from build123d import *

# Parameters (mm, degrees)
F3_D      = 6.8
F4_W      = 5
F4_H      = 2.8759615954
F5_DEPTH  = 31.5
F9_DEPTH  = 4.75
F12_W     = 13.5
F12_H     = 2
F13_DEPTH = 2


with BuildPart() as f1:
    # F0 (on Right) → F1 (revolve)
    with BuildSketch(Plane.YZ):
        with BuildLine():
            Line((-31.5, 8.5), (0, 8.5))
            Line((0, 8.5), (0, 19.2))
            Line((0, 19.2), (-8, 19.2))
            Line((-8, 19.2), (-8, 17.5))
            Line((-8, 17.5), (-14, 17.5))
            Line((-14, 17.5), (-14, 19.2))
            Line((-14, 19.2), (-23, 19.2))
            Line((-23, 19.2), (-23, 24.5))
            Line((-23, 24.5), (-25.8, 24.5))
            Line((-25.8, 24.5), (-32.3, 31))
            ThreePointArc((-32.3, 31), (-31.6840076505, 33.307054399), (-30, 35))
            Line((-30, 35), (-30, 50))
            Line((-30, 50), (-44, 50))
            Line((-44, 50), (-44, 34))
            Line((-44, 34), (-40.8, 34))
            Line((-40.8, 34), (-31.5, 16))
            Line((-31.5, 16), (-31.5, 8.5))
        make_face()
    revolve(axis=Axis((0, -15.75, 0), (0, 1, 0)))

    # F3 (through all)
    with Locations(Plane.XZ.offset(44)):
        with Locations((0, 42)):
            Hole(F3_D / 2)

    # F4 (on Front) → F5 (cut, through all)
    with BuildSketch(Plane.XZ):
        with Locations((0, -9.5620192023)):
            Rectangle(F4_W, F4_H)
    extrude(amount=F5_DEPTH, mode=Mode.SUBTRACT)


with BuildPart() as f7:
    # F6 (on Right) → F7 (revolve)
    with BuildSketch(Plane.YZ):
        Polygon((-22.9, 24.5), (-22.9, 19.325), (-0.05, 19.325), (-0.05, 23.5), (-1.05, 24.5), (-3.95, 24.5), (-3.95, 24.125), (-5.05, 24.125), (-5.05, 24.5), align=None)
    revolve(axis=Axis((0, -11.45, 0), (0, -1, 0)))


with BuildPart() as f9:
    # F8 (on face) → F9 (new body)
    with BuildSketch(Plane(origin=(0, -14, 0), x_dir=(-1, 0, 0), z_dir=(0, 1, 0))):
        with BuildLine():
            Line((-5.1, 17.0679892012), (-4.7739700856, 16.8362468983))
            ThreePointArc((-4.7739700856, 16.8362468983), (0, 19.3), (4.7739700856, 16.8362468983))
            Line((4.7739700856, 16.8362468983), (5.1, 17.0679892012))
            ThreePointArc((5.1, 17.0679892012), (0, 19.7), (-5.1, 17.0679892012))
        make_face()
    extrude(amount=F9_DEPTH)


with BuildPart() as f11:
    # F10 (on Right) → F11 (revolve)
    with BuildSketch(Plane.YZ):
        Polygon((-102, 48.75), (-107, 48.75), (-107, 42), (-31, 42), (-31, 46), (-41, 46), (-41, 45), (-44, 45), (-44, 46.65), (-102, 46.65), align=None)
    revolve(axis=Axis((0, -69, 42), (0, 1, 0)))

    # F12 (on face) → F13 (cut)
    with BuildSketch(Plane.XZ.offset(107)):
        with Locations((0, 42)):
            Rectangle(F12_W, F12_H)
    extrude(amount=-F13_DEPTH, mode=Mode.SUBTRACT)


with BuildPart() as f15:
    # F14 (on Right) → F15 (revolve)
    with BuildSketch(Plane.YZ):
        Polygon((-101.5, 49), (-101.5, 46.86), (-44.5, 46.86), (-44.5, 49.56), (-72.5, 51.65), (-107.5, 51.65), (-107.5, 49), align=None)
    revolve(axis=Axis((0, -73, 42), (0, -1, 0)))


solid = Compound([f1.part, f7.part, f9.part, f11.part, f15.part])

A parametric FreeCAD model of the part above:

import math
import FreeCAD as App
import Part
import Sketcher
from FreeCAD import Vector
Q = App.Units.Quantity

doc = App.newDocument("Part")
body = doc.addObject("PartDesign::Body", "Body")

# Sketch on YZ plane
sketch1 = doc.addObject("Sketcher::SketchObject", "Sketch")
body.addObject(sketch1)
sketch1.AttachmentSupport = (doc.YZ_Plane, [""])
sketch1.MapMode = "FlatFace"
sketch1.addGeometry([
    Part.LineSegment(Vector(-31.5, 8.5, 0), Vector(0, 8.5, 0)),  # 0
    Part.LineSegment(Vector(0, 8.5, 0), Vector(0, 19.2, 0)),  # 1
    Part.LineSegment(Vector(0, 19.2, 0), Vector(-8, 19.2, 0)),  # 2
    Part.LineSegment(Vector(-8, 19.2, 0), Vector(-8, 17.5, 0)),  # 3
    Part.LineSegment(Vector(-8, 17.5, 0), Vector(-14, 17.5, 0)),  # 4
    Part.LineSegment(Vector(-14, 17.5, 0), Vector(-14, 19.2, 0)),  # 5
    Part.LineSegment(Vector(-14, 19.2, 0), Vector(-23, 19.2, 0)),  # 6
    Part.LineSegment(Vector(-23, 19.2, 0), Vector(-23, 24.5, 0)),  # 7
    Part.LineSegment(Vector(-23, 24.5, 0), Vector(-25.8, 24.5, 0)),  # 8
    Part.LineSegment(Vector(-25.8, 24.5, 0), Vector(-32.3, 31, 0)),  # 9
    Part.ArcOfCircle(Part.Circle(Vector(-27.7, 31, 0), Vector(0, 0, 1), 4.6), math.radians(120), math.radians(180)),  # 10
    Part.LineSegment(Vector(-30, 35, 0), Vector(-30, 50, 0)),  # 11
    Part.LineSegment(Vector(-30, 50, 0), Vector(-44, 50, 0)),  # 12
    Part.LineSegment(Vector(-44, 50, 0), Vector(-44, 34, 0)),  # 13
    Part.LineSegment(Vector(-44, 34, 0), Vector(-40.8, 34, 0)),  # 14
    Part.LineSegment(Vector(-40.8, 34, 0), Vector(-31.5, 16, 0)),  # 15
    Part.LineSegment(Vector(-31.5, 16, 0), Vector(-31.5, 8.5, 0)),  # 16
], False)
sketch1.addConstraint([
    Sketcher.Constraint("Coincident", 0, 2, 1, 1),
    Sketcher.Constraint("Coincident", 1, 2, 2, 1),
    Sketcher.Constraint("Coincident", 2, 2, 3, 1),
    Sketcher.Constraint("Coincident", 3, 2, 4, 1),
    Sketcher.Constraint("Coincident", 4, 2, 5, 1),
    Sketcher.Constraint("Coincident", 5, 2, 6, 1),
    Sketcher.Constraint("Coincident", 6, 2, 7, 1),
    Sketcher.Constraint("Coincident", 7, 2, 8, 1),
    Sketcher.Constraint("Coincident", 8, 2, 9, 1),
    Sketcher.Constraint("Coincident", 9, 2, 10, 2),
    Sketcher.Constraint("Coincident", 10, 1, 11, 1),
    Sketcher.Constraint("Coincident", 11, 2, 12, 1),
    Sketcher.Constraint("Coincident", 12, 2, 13, 1),
    Sketcher.Constraint("Coincident", 13, 2, 14, 1),
    Sketcher.Constraint("Coincident", 14, 2, 15, 1),
    Sketcher.Constraint("Coincident", 15, 2, 16, 1),
    Sketcher.Constraint("Coincident", 16, 2, 0, 1),
    Sketcher.Constraint("Horizontal", 0),
    Sketcher.Constraint("Vertical", 1),
    Sketcher.Constraint("Horizontal", 2),
    Sketcher.Constraint("Vertical", 3),
    Sketcher.Constraint("Horizontal", 4),
    Sketcher.Constraint("Vertical", 5),
    Sketcher.Constraint("Horizontal", 6),
    Sketcher.Constraint("Vertical", 7),
    Sketcher.Constraint("Horizontal", 8),
    Sketcher.Constraint("Vertical", 11),
    Sketcher.Constraint("Horizontal", 12),
    Sketcher.Constraint("Vertical", 13),
    Sketcher.Constraint("Horizontal", 14),
    Sketcher.Constraint("Vertical", 16),
    Sketcher.Constraint("PointOnObject", 0, 2, -2),
    Sketcher.Constraint("Horizontal", 2, 2, 5, 2),
    Sketcher.Constraint("Horizontal", 10, 3, 9, 2),
    Sketcher.Constraint("DistanceX", 2, 2, 2, 1, 8.0),
    Sketcher.Constraint("DistanceX", 4, 2, 4, 1, 6.0),
    Sketcher.Constraint("DistanceX", 6, 2, 6, 1, 9.0),
    Sketcher.Constraint("DistanceX", 12, 2, 12, 1, 14.0),
    Sketcher.Constraint("DistanceY", 11, 1, 11, 2, 15.0),
    Sketcher.Constraint("DistanceY", 13, 2, 13, 1, 16.0),
    Sketcher.Constraint("Angle", 9, Q("135 deg")),
    Sketcher.Constraint("DistanceX", 0, 1, 0, 2, 31.5),
    Sketcher.Constraint("DistanceX", 8, 2, 8, 1, 2.8),
    Sketcher.Constraint("DistanceX", 14, 1, 14, 2, 3.2),
    Sketcher.Constraint("DistanceY", 1, 1, 1, 2, 10.7),
    Sketcher.Constraint("DistanceY", 3, 2, 3, 1, 1.7),
    Sketcher.Constraint("DistanceY", 7, 1, 7, 2, 5.3),
    Sketcher.Constraint("DistanceY", 16, 2, 16, 1, 7.5),
    Sketcher.Constraint("DistanceY", -1, 1, 10, 3, 31.0),
    Sketcher.Constraint("DistanceX", 10, 1, -1, 1, 30.0),
    Sketcher.Constraint("DistanceY", -1, 1, 10, 1, 35.0),
    Sketcher.Constraint("DistanceY", -1, 1, 15, 2, 16.0),
])
revolution = doc.addObject("PartDesign::Revolution", "Revolution")
body.addObject(revolution)
revolution.Profile = sketch1
revolution.ReferenceAxis = (sketch1, ["H_Axis"])
revolution.Angle = 360

# Sketch on XZ plane
sketch2 = doc.addObject("Sketcher::SketchObject", "Sketch001")
body.addObject(sketch2)
sketch2.AttachmentSupport = (doc.XZ_Plane, [""])
sketch2.MapMode = "FlatFace"
sketch2.AttachmentOffset = App.Placement(Vector(0, 0, 44), App.Rotation())
sketch2.addGeometry(Part.Circle(Vector(0, 42, 0), Vector(0, 0, 1), 3.4), False)
sketch2.addConstraint([
    Sketcher.Constraint("PointOnObject", 0, 3, -2),
    Sketcher.Constraint("Diameter", 0, 6.8),
    Sketcher.Constraint("DistanceY", -1, 1, 0, 3, 42.0),
])
doc.recompute()
hole = doc.addObject("PartDesign::Hole", "Hole")
body.addObject(hole)
hole.Profile = sketch2
hole.ThreadType = "None"
hole.Diameter = 6.8
hole.DepthType = "ThroughAll"

# Sketch on XZ plane
sketch3 = doc.addObject("Sketcher::SketchObject", "Sketch002")
body.addObject(sketch3)
sketch3.AttachmentSupport = (doc.XZ_Plane, [""])
sketch3.MapMode = "FlatFace"
sketch3.addGeometry([
    Part.LineSegment(Vector(-2.5, -8.1, 0), Vector(-2.5, -11, 0)),
    Part.LineSegment(Vector(-2.5, -11, 0), Vector(2.5, -11, 0)),
    Part.LineSegment(Vector(2.5, -11, 0), Vector(2.5, -8.1, 0)),
    Part.LineSegment(Vector(2.5, -8.1, 0), Vector(-2.5, -8.1, 0)),
], False)
sketch3.addConstraint([
    Sketcher.Constraint("Coincident", 0, 2, 1, 1),
    Sketcher.Constraint("Coincident", 1, 2, 2, 1),
    Sketcher.Constraint("Coincident", 2, 2, 3, 1),
    Sketcher.Constraint("Coincident", 3, 2, 0, 1),
    Sketcher.Constraint("Vertical", 0),
    Sketcher.Constraint("Horizontal", 1),
    Sketcher.Constraint("Vertical", 2),
    Sketcher.Constraint("Horizontal", 3),
    Sketcher.Constraint("DistanceX", 1, 1, 1, 2, 5.0),
    Sketcher.Constraint("DistanceY", 0, 2, -1, 1, 11.0),
    Sketcher.Constraint("DistanceX", 0, 2, -1, 1, 2.5),
    Sketcher.Constraint("DistanceY", 0, 2, 0, 1, 2.875962),
])
pocket1 = doc.addObject("PartDesign::Pocket", "Pocket")
body.addObject(pocket1)
pocket1.Profile = sketch3
pocket1.Type = "ThroughAll"
pocket1.Reversed = True
body2 = doc.addObject("PartDesign::Body", "Body001")

# Sketch on YZ plane
sketch4 = doc.addObject("Sketcher::SketchObject", "Sketch003")
body2.addObject(sketch4)
sketch4.AttachmentSupport = (doc.getObject("YZ_Plane001"), [""])
sketch4.MapMode = "FlatFace"
sketch4.addGeometry([
    Part.LineSegment(Vector(-22.9, 24.5, 0), Vector(-22.9, 19.32, 0)),  # 0
    Part.LineSegment(Vector(-22.9, 19.32, 0), Vector(-0.05, 19.32, 0)),  # 1
    Part.LineSegment(Vector(-0.05, 19.32, 0), Vector(-0.05, 23.5, 0)),  # 2
    Part.LineSegment(Vector(-0.05, 23.5, 0), Vector(-1.05, 24.5, 0)),  # 3
    Part.LineSegment(Vector(-1.05, 24.5, 0), Vector(-3.95, 24.5, 0)),  # 4
    Part.LineSegment(Vector(-3.95, 24.5, 0), Vector(-3.95, 24.12, 0)),  # 5
    Part.LineSegment(Vector(-3.95, 24.12, 0), Vector(-5.05, 24.12, 0)),  # 6
    Part.LineSegment(Vector(-5.05, 24.12, 0), Vector(-5.05, 24.5, 0)),  # 7
    Part.LineSegment(Vector(-5.05, 24.5, 0), Vector(-22.9, 24.5, 0)),  # 8
], False)
sketch4.addConstraint([
    Sketcher.Constraint("Coincident", 0, 2, 1, 1),
    Sketcher.Constraint("Coincident", 1, 2, 2, 1),
    Sketcher.Constraint("Coincident", 2, 2, 3, 1),
    Sketcher.Constraint("Coincident", 3, 2, 4, 1),
    Sketcher.Constraint("Coincident", 4, 2, 5, 1),
    Sketcher.Constraint("Coincident", 5, 2, 6, 1),
    Sketcher.Constraint("Coincident", 6, 2, 7, 1),
    Sketcher.Constraint("Coincident", 7, 2, 8, 1),
    Sketcher.Constraint("Coincident", 8, 2, 0, 1),
    Sketcher.Constraint("Vertical", 0),
    Sketcher.Constraint("Horizontal", 1),
    Sketcher.Constraint("Vertical", 2),
    Sketcher.Constraint("Horizontal", 4),
    Sketcher.Constraint("Vertical", 5),
    Sketcher.Constraint("Horizontal", 6),
    Sketcher.Constraint("Vertical", 7),
    Sketcher.Constraint("Horizontal", 8),
    Sketcher.Constraint("Horizontal", 4, 2, 7, 2),
    Sketcher.Constraint("Angle", 3, Q("135 deg")),
    Sketcher.Constraint("DistanceX", 4, 2, 4, 1, 2.9),
    Sketcher.Constraint("DistanceX", 6, 2, 6, 1, 1.1),
    Sketcher.Constraint("DistanceX", 3, 2, 2, 2, 1.0),
    Sketcher.Constraint("DistanceX", 1, 1, 1, 2, 22.85),
    Sketcher.Constraint("DistanceX", 0, 2, -1, 1, 22.9),
    Sketcher.Constraint("DistanceY", -1, 1, 2, 2, 23.5),
    Sketcher.Constraint("DistanceY", 1, 2, 5, 2, 4.8),
    Sketcher.Constraint("DistanceY", 0, 2, 0, 1, 5.175),
])
revolution2 = doc.addObject("PartDesign::Revolution", "Revolution001")
body2.addObject(revolution2)
revolution2.Profile = sketch4
revolution2.ReferenceAxis = (sketch4, ["H_Axis"])
revolution2.Angle = 360
body3 = doc.addObject("PartDesign::Body", "Body002")

# Sketch on XZ plane
sketch5 = doc.addObject("Sketcher::SketchObject", "Sketch004")
body3.addObject(sketch5)
sketch5.AttachmentSupport = (doc.getObject("XZ_Plane002"), [""])
sketch5.MapMode = "FlatFace"
sketch5.AttachmentOffset = App.Placement(Vector(0, 0, 14), App.Rotation())
sketch5.addGeometry([
    Part.LineSegment(Vector(5.1, 17.07, 0), Vector(4.77, 16.84, 0)),
    Part.ArcOfCircle(Part.Circle(Vector(0, 13.44, 0), Vector(0, 0, 1), 5.86), math.radians(35), math.radians(145)),
    Part.LineSegment(Vector(-4.77, 16.84, 0), Vector(-5.1, 17.07, 0)),
    Part.ArcOfCircle(Part.Circle(Vector(0, 13.44, 0), Vector(0, 0, 1), 6.26), math.radians(35), math.radians(145)),
], False)
sketch5.addConstraint([
    Sketcher.Constraint("Coincident", 0, 2, 1, 1),
    Sketcher.Constraint("Coincident", 1, 2, 2, 1),
    Sketcher.Constraint("Coincident", 2, 2, 3, 2),
    Sketcher.Constraint("Coincident", 3, 1, 0, 1),
    Sketcher.Constraint("Coincident", 3, 3, 1, 3),
    Sketcher.Constraint("Symmetric", 0, 2, 1, 2, -2),
    Sketcher.Constraint("Horizontal", 2, 2, 3, 1),
    Sketcher.Constraint("Distance", 0, 0.4),
    Sketcher.Constraint("DistanceX", 2, 2, -1, 1, 5.1),
    Sketcher.Constraint("Radius", 1, 5.857095),
    Sketcher.Constraint("DistanceX", -1, 1, 0, 2, 4.77397),
    Sketcher.Constraint("DistanceY", -1, 1, 2, 2, 17.067989),
])
pad1 = doc.addObject("PartDesign::Pad", "Pad")
body3.addObject(pad1)
pad1.Profile = sketch5
pad1.Length = 4.75
pad1.Reversed = True
body4 = doc.addObject("PartDesign::Body", "Body003")

# Sketch on YZ plane
sketch6 = doc.addObject("Sketcher::SketchObject", "Sketch005")
body4.addObject(sketch6)
sketch6.AttachmentSupport = (doc.getObject("YZ_Plane003"), [""])
sketch6.MapMode = "FlatFace"
sketch6.addGeometry([
    Part.LineSegment(Vector(-102, 48.8, 0), Vector(-107, 48.8, 0)),  # 0
    Part.LineSegment(Vector(-107, 48.8, 0), Vector(-107, 42, 0)),  # 1
    Part.LineSegment(Vector(-107, 42, 0), Vector(-31, 42, 0)),  # 2
    Part.LineSegment(Vector(-31, 42, 0), Vector(-31, 46, 0)),  # 3
    Part.LineSegment(Vector(-31, 46, 0), Vector(-41, 46, 0)),  # 4
    Part.LineSegment(Vector(-41, 46, 0), Vector(-41, 45, 0)),  # 5
    Part.LineSegment(Vector(-41, 45, 0), Vector(-44, 45, 0)),  # 6
    Part.LineSegment(Vector(-44, 45, 0), Vector(-44, 46.6, 0)),  # 7
    Part.LineSegment(Vector(-44, 46.6, 0), Vector(-102, 46.6, 0)),  # 8
    Part.LineSegment(Vector(-102, 46.6, 0), Vector(-102, 48.8, 0)),  # 9
], False)
sketch6.addGeometry(Part.LineSegment(Vector(-107, 42, 0), Vector(-31, 42, 0)), True)  # axis
sketch6.addConstraint([
    Sketcher.Constraint("Coincident", 0, 2, 1, 1),
    Sketcher.Constraint("Coincident", 1, 2, 2, 1),
    Sketcher.Constraint("Coincident", 2, 2, 3, 1),
    Sketcher.Constraint("Coincident", 3, 2, 4, 1),
    Sketcher.Constraint("Coincident", 4, 2, 5, 1),
    Sketcher.Constraint("Coincident", 5, 2, 6, 1),
    Sketcher.Constraint("Coincident", 6, 2, 7, 1),
    Sketcher.Constraint("Coincident", 7, 2, 8, 1),
    Sketcher.Constraint("Coincident", 8, 2, 9, 1),
    Sketcher.Constraint("Coincident", 9, 2, 0, 1),
    Sketcher.Constraint("Horizontal", 0),
    Sketcher.Constraint("Vertical", 1),
    Sketcher.Constraint("Horizontal", 2),
    Sketcher.Constraint("Vertical", 3),
    Sketcher.Constraint("Horizontal", 4),
    Sketcher.Constraint("Vertical", 5),
    Sketcher.Constraint("Horizontal", 6),
    Sketcher.Constraint("Vertical", 7),
    Sketcher.Constraint("Horizontal", 8),
    Sketcher.Constraint("Vertical", 9),
    Sketcher.Constraint("Horizontal", 10),
    Sketcher.Constraint("Coincident", 10, 1, 1, 2),
    Sketcher.Constraint("Vertical", 3, 2, 10, 2),
    Sketcher.Constraint("DistanceX", 0, 2, 0, 1, 5.0),
    Sketcher.Constraint("DistanceX", 2, 1, 2, 2, 76.0),
    Sketcher.Constraint("DistanceX", 4, 2, 4, 1, 10.0),
    Sketcher.Constraint("DistanceX", 6, 2, 6, 1, 3.0),
    Sketcher.Constraint("DistanceY", 3, 1, 3, 2, 4.0),
    Sketcher.Constraint("DistanceY", 5, 2, 5, 1, 1.0),
    Sketcher.Constraint("DistanceY", 9, 1, 9, 2, 2.1),
    Sketcher.Constraint("DistanceX", 0, 2, -1, 1, 107.0),
    Sketcher.Constraint("DistanceY", -1, 1, 1, 2, 42.0),
    Sketcher.Constraint("DistanceY", 1, 2, 1, 1, 6.75),
])
revolution3 = doc.addObject("PartDesign::Revolution", "Revolution002")
body4.addObject(revolution3)
revolution3.Profile = sketch6
revolution3.ReferenceAxis = (sketch6, ["Axis0"])
revolution3.Angle = 360

# Sketch on XZ plane
sketch7 = doc.addObject("Sketcher::SketchObject", "Sketch006")
body4.addObject(sketch7)
sketch7.AttachmentSupport = (doc.getObject("XZ_Plane003"), [""])
sketch7.MapMode = "FlatFace"
sketch7.AttachmentOffset = App.Placement(Vector(0, 0, 107), App.Rotation())
sketch7.addGeometry([
    Part.LineSegment(Vector(-6.8, 43, 0), Vector(-6.8, 41, 0)),
    Part.LineSegment(Vector(-6.8, 41, 0), Vector(6.8, 41, 0)),
    Part.LineSegment(Vector(6.8, 41, 0), Vector(6.8, 43, 0)),
    Part.LineSegment(Vector(6.8, 43, 0), Vector(-6.8, 43, 0)),
], False)
sketch7.addConstraint([
    Sketcher.Constraint("Coincident", 0, 2, 1, 1),
    Sketcher.Constraint("Coincident", 1, 2, 2, 1),
    Sketcher.Constraint("Coincident", 2, 2, 3, 1),
    Sketcher.Constraint("Coincident", 3, 2, 0, 1),
    Sketcher.Constraint("Vertical", 0),
    Sketcher.Constraint("Horizontal", 1),
    Sketcher.Constraint("Vertical", 2),
    Sketcher.Constraint("Horizontal", 3),
    Sketcher.Constraint("DistanceY", 0, 2, 0, 1, 2.0),
    Sketcher.Constraint("DistanceX", 1, 1, 1, 2, 13.5),
    Sketcher.Constraint("DistanceY", -1, 1, 0, 2, 41.0),
    Sketcher.Constraint("DistanceX", 0, 2, -1, 1, 6.75),
])
pocket2 = doc.addObject("PartDesign::Pocket", "Pocket001")
body4.addObject(pocket2)
pocket2.Profile = sketch7
pocket2.Length = 2
body5 = doc.addObject("PartDesign::Body", "Body004")

# Sketch on YZ plane
sketch8 = doc.addObject("Sketcher::SketchObject", "Sketch007")
body5.addObject(sketch8)
sketch8.AttachmentSupport = (doc.getObject("YZ_Plane004"), [""])
sketch8.MapMode = "FlatFace"
sketch8.addGeometry([
    Part.LineSegment(Vector(-101.5, 49, 0), Vector(-101.5, 46.9, 0)),  # 0
    Part.LineSegment(Vector(-101.5, 46.9, 0), Vector(-44.5, 46.9, 0)),  # 1
    Part.LineSegment(Vector(-44.5, 46.9, 0), Vector(-44.5, 49.6, 0)),  # 2
    Part.LineSegment(Vector(-44.5, 49.6, 0), Vector(-72.5, 51.6, 0)),  # 3
    Part.LineSegment(Vector(-72.5, 51.6, 0), Vector(-107.5, 51.6, 0)),  # 4
    Part.LineSegment(Vector(-107.5, 51.6, 0), Vector(-107.5, 49, 0)),  # 5
    Part.LineSegment(Vector(-107.5, 49, 0), Vector(-101.5, 49, 0)),  # 6
], False)
sketch8.addGeometry(Part.LineSegment(Vector(-44.5, 42, 0), Vector(-107.5, 42, 0)), True)  # axis
sketch8.addConstraint([
    Sketcher.Constraint("Coincident", 0, 2, 1, 1),
    Sketcher.Constraint("Coincident", 1, 2, 2, 1),
    Sketcher.Constraint("Coincident", 2, 2, 3, 1),
    Sketcher.Constraint("Coincident", 3, 2, 4, 1),
    Sketcher.Constraint("Coincident", 4, 2, 5, 1),
    Sketcher.Constraint("Coincident", 5, 2, 6, 1),
    Sketcher.Constraint("Coincident", 6, 2, 0, 1),
    Sketcher.Constraint("Vertical", 0),
    Sketcher.Constraint("Horizontal", 1),
    Sketcher.Constraint("Vertical", 2),
    Sketcher.Constraint("Horizontal", 4),
    Sketcher.Constraint("Vertical", 5),
    Sketcher.Constraint("Horizontal", 6),
    Sketcher.Constraint("Horizontal", 7),
    Sketcher.Constraint("Vertical", 2, 2, 7, 1),
    Sketcher.Constraint("Vertical", 5, 2, 7, 2),
    Sketcher.Constraint("DistanceX", 1, 1, 1, 2, 57.0),
    Sketcher.Constraint("DistanceX", 4, 2, 4, 1, 35.0),
    Sketcher.Constraint("DistanceX", 6, 1, 6, 2, 6.0),
    Sketcher.Constraint("DistanceY", 2, 1, 2, 2, 2.7),
    Sketcher.Constraint("DistanceY", -1, 1, 5, 2, 49.0),
    Sketcher.Constraint("DistanceY", -1, 1, 7, 1, 42.0),
    Sketcher.Constraint("DistanceY", 0, 2, 0, 1, 2.14),
    Sketcher.Constraint("DistanceY", 5, 2, 5, 1, 2.65),
    Sketcher.Constraint("DistanceX", 0, 2, -1, 1, 101.5),
])
revolution4 = doc.addObject("PartDesign::Revolution", "Revolution003")
body5.addObject(revolution4)
revolution4.Profile = sketch8
revolution4.ReferenceAxis = (sketch8, ["Axis0"])
revolution4.Angle = 360

doc.recompute()
